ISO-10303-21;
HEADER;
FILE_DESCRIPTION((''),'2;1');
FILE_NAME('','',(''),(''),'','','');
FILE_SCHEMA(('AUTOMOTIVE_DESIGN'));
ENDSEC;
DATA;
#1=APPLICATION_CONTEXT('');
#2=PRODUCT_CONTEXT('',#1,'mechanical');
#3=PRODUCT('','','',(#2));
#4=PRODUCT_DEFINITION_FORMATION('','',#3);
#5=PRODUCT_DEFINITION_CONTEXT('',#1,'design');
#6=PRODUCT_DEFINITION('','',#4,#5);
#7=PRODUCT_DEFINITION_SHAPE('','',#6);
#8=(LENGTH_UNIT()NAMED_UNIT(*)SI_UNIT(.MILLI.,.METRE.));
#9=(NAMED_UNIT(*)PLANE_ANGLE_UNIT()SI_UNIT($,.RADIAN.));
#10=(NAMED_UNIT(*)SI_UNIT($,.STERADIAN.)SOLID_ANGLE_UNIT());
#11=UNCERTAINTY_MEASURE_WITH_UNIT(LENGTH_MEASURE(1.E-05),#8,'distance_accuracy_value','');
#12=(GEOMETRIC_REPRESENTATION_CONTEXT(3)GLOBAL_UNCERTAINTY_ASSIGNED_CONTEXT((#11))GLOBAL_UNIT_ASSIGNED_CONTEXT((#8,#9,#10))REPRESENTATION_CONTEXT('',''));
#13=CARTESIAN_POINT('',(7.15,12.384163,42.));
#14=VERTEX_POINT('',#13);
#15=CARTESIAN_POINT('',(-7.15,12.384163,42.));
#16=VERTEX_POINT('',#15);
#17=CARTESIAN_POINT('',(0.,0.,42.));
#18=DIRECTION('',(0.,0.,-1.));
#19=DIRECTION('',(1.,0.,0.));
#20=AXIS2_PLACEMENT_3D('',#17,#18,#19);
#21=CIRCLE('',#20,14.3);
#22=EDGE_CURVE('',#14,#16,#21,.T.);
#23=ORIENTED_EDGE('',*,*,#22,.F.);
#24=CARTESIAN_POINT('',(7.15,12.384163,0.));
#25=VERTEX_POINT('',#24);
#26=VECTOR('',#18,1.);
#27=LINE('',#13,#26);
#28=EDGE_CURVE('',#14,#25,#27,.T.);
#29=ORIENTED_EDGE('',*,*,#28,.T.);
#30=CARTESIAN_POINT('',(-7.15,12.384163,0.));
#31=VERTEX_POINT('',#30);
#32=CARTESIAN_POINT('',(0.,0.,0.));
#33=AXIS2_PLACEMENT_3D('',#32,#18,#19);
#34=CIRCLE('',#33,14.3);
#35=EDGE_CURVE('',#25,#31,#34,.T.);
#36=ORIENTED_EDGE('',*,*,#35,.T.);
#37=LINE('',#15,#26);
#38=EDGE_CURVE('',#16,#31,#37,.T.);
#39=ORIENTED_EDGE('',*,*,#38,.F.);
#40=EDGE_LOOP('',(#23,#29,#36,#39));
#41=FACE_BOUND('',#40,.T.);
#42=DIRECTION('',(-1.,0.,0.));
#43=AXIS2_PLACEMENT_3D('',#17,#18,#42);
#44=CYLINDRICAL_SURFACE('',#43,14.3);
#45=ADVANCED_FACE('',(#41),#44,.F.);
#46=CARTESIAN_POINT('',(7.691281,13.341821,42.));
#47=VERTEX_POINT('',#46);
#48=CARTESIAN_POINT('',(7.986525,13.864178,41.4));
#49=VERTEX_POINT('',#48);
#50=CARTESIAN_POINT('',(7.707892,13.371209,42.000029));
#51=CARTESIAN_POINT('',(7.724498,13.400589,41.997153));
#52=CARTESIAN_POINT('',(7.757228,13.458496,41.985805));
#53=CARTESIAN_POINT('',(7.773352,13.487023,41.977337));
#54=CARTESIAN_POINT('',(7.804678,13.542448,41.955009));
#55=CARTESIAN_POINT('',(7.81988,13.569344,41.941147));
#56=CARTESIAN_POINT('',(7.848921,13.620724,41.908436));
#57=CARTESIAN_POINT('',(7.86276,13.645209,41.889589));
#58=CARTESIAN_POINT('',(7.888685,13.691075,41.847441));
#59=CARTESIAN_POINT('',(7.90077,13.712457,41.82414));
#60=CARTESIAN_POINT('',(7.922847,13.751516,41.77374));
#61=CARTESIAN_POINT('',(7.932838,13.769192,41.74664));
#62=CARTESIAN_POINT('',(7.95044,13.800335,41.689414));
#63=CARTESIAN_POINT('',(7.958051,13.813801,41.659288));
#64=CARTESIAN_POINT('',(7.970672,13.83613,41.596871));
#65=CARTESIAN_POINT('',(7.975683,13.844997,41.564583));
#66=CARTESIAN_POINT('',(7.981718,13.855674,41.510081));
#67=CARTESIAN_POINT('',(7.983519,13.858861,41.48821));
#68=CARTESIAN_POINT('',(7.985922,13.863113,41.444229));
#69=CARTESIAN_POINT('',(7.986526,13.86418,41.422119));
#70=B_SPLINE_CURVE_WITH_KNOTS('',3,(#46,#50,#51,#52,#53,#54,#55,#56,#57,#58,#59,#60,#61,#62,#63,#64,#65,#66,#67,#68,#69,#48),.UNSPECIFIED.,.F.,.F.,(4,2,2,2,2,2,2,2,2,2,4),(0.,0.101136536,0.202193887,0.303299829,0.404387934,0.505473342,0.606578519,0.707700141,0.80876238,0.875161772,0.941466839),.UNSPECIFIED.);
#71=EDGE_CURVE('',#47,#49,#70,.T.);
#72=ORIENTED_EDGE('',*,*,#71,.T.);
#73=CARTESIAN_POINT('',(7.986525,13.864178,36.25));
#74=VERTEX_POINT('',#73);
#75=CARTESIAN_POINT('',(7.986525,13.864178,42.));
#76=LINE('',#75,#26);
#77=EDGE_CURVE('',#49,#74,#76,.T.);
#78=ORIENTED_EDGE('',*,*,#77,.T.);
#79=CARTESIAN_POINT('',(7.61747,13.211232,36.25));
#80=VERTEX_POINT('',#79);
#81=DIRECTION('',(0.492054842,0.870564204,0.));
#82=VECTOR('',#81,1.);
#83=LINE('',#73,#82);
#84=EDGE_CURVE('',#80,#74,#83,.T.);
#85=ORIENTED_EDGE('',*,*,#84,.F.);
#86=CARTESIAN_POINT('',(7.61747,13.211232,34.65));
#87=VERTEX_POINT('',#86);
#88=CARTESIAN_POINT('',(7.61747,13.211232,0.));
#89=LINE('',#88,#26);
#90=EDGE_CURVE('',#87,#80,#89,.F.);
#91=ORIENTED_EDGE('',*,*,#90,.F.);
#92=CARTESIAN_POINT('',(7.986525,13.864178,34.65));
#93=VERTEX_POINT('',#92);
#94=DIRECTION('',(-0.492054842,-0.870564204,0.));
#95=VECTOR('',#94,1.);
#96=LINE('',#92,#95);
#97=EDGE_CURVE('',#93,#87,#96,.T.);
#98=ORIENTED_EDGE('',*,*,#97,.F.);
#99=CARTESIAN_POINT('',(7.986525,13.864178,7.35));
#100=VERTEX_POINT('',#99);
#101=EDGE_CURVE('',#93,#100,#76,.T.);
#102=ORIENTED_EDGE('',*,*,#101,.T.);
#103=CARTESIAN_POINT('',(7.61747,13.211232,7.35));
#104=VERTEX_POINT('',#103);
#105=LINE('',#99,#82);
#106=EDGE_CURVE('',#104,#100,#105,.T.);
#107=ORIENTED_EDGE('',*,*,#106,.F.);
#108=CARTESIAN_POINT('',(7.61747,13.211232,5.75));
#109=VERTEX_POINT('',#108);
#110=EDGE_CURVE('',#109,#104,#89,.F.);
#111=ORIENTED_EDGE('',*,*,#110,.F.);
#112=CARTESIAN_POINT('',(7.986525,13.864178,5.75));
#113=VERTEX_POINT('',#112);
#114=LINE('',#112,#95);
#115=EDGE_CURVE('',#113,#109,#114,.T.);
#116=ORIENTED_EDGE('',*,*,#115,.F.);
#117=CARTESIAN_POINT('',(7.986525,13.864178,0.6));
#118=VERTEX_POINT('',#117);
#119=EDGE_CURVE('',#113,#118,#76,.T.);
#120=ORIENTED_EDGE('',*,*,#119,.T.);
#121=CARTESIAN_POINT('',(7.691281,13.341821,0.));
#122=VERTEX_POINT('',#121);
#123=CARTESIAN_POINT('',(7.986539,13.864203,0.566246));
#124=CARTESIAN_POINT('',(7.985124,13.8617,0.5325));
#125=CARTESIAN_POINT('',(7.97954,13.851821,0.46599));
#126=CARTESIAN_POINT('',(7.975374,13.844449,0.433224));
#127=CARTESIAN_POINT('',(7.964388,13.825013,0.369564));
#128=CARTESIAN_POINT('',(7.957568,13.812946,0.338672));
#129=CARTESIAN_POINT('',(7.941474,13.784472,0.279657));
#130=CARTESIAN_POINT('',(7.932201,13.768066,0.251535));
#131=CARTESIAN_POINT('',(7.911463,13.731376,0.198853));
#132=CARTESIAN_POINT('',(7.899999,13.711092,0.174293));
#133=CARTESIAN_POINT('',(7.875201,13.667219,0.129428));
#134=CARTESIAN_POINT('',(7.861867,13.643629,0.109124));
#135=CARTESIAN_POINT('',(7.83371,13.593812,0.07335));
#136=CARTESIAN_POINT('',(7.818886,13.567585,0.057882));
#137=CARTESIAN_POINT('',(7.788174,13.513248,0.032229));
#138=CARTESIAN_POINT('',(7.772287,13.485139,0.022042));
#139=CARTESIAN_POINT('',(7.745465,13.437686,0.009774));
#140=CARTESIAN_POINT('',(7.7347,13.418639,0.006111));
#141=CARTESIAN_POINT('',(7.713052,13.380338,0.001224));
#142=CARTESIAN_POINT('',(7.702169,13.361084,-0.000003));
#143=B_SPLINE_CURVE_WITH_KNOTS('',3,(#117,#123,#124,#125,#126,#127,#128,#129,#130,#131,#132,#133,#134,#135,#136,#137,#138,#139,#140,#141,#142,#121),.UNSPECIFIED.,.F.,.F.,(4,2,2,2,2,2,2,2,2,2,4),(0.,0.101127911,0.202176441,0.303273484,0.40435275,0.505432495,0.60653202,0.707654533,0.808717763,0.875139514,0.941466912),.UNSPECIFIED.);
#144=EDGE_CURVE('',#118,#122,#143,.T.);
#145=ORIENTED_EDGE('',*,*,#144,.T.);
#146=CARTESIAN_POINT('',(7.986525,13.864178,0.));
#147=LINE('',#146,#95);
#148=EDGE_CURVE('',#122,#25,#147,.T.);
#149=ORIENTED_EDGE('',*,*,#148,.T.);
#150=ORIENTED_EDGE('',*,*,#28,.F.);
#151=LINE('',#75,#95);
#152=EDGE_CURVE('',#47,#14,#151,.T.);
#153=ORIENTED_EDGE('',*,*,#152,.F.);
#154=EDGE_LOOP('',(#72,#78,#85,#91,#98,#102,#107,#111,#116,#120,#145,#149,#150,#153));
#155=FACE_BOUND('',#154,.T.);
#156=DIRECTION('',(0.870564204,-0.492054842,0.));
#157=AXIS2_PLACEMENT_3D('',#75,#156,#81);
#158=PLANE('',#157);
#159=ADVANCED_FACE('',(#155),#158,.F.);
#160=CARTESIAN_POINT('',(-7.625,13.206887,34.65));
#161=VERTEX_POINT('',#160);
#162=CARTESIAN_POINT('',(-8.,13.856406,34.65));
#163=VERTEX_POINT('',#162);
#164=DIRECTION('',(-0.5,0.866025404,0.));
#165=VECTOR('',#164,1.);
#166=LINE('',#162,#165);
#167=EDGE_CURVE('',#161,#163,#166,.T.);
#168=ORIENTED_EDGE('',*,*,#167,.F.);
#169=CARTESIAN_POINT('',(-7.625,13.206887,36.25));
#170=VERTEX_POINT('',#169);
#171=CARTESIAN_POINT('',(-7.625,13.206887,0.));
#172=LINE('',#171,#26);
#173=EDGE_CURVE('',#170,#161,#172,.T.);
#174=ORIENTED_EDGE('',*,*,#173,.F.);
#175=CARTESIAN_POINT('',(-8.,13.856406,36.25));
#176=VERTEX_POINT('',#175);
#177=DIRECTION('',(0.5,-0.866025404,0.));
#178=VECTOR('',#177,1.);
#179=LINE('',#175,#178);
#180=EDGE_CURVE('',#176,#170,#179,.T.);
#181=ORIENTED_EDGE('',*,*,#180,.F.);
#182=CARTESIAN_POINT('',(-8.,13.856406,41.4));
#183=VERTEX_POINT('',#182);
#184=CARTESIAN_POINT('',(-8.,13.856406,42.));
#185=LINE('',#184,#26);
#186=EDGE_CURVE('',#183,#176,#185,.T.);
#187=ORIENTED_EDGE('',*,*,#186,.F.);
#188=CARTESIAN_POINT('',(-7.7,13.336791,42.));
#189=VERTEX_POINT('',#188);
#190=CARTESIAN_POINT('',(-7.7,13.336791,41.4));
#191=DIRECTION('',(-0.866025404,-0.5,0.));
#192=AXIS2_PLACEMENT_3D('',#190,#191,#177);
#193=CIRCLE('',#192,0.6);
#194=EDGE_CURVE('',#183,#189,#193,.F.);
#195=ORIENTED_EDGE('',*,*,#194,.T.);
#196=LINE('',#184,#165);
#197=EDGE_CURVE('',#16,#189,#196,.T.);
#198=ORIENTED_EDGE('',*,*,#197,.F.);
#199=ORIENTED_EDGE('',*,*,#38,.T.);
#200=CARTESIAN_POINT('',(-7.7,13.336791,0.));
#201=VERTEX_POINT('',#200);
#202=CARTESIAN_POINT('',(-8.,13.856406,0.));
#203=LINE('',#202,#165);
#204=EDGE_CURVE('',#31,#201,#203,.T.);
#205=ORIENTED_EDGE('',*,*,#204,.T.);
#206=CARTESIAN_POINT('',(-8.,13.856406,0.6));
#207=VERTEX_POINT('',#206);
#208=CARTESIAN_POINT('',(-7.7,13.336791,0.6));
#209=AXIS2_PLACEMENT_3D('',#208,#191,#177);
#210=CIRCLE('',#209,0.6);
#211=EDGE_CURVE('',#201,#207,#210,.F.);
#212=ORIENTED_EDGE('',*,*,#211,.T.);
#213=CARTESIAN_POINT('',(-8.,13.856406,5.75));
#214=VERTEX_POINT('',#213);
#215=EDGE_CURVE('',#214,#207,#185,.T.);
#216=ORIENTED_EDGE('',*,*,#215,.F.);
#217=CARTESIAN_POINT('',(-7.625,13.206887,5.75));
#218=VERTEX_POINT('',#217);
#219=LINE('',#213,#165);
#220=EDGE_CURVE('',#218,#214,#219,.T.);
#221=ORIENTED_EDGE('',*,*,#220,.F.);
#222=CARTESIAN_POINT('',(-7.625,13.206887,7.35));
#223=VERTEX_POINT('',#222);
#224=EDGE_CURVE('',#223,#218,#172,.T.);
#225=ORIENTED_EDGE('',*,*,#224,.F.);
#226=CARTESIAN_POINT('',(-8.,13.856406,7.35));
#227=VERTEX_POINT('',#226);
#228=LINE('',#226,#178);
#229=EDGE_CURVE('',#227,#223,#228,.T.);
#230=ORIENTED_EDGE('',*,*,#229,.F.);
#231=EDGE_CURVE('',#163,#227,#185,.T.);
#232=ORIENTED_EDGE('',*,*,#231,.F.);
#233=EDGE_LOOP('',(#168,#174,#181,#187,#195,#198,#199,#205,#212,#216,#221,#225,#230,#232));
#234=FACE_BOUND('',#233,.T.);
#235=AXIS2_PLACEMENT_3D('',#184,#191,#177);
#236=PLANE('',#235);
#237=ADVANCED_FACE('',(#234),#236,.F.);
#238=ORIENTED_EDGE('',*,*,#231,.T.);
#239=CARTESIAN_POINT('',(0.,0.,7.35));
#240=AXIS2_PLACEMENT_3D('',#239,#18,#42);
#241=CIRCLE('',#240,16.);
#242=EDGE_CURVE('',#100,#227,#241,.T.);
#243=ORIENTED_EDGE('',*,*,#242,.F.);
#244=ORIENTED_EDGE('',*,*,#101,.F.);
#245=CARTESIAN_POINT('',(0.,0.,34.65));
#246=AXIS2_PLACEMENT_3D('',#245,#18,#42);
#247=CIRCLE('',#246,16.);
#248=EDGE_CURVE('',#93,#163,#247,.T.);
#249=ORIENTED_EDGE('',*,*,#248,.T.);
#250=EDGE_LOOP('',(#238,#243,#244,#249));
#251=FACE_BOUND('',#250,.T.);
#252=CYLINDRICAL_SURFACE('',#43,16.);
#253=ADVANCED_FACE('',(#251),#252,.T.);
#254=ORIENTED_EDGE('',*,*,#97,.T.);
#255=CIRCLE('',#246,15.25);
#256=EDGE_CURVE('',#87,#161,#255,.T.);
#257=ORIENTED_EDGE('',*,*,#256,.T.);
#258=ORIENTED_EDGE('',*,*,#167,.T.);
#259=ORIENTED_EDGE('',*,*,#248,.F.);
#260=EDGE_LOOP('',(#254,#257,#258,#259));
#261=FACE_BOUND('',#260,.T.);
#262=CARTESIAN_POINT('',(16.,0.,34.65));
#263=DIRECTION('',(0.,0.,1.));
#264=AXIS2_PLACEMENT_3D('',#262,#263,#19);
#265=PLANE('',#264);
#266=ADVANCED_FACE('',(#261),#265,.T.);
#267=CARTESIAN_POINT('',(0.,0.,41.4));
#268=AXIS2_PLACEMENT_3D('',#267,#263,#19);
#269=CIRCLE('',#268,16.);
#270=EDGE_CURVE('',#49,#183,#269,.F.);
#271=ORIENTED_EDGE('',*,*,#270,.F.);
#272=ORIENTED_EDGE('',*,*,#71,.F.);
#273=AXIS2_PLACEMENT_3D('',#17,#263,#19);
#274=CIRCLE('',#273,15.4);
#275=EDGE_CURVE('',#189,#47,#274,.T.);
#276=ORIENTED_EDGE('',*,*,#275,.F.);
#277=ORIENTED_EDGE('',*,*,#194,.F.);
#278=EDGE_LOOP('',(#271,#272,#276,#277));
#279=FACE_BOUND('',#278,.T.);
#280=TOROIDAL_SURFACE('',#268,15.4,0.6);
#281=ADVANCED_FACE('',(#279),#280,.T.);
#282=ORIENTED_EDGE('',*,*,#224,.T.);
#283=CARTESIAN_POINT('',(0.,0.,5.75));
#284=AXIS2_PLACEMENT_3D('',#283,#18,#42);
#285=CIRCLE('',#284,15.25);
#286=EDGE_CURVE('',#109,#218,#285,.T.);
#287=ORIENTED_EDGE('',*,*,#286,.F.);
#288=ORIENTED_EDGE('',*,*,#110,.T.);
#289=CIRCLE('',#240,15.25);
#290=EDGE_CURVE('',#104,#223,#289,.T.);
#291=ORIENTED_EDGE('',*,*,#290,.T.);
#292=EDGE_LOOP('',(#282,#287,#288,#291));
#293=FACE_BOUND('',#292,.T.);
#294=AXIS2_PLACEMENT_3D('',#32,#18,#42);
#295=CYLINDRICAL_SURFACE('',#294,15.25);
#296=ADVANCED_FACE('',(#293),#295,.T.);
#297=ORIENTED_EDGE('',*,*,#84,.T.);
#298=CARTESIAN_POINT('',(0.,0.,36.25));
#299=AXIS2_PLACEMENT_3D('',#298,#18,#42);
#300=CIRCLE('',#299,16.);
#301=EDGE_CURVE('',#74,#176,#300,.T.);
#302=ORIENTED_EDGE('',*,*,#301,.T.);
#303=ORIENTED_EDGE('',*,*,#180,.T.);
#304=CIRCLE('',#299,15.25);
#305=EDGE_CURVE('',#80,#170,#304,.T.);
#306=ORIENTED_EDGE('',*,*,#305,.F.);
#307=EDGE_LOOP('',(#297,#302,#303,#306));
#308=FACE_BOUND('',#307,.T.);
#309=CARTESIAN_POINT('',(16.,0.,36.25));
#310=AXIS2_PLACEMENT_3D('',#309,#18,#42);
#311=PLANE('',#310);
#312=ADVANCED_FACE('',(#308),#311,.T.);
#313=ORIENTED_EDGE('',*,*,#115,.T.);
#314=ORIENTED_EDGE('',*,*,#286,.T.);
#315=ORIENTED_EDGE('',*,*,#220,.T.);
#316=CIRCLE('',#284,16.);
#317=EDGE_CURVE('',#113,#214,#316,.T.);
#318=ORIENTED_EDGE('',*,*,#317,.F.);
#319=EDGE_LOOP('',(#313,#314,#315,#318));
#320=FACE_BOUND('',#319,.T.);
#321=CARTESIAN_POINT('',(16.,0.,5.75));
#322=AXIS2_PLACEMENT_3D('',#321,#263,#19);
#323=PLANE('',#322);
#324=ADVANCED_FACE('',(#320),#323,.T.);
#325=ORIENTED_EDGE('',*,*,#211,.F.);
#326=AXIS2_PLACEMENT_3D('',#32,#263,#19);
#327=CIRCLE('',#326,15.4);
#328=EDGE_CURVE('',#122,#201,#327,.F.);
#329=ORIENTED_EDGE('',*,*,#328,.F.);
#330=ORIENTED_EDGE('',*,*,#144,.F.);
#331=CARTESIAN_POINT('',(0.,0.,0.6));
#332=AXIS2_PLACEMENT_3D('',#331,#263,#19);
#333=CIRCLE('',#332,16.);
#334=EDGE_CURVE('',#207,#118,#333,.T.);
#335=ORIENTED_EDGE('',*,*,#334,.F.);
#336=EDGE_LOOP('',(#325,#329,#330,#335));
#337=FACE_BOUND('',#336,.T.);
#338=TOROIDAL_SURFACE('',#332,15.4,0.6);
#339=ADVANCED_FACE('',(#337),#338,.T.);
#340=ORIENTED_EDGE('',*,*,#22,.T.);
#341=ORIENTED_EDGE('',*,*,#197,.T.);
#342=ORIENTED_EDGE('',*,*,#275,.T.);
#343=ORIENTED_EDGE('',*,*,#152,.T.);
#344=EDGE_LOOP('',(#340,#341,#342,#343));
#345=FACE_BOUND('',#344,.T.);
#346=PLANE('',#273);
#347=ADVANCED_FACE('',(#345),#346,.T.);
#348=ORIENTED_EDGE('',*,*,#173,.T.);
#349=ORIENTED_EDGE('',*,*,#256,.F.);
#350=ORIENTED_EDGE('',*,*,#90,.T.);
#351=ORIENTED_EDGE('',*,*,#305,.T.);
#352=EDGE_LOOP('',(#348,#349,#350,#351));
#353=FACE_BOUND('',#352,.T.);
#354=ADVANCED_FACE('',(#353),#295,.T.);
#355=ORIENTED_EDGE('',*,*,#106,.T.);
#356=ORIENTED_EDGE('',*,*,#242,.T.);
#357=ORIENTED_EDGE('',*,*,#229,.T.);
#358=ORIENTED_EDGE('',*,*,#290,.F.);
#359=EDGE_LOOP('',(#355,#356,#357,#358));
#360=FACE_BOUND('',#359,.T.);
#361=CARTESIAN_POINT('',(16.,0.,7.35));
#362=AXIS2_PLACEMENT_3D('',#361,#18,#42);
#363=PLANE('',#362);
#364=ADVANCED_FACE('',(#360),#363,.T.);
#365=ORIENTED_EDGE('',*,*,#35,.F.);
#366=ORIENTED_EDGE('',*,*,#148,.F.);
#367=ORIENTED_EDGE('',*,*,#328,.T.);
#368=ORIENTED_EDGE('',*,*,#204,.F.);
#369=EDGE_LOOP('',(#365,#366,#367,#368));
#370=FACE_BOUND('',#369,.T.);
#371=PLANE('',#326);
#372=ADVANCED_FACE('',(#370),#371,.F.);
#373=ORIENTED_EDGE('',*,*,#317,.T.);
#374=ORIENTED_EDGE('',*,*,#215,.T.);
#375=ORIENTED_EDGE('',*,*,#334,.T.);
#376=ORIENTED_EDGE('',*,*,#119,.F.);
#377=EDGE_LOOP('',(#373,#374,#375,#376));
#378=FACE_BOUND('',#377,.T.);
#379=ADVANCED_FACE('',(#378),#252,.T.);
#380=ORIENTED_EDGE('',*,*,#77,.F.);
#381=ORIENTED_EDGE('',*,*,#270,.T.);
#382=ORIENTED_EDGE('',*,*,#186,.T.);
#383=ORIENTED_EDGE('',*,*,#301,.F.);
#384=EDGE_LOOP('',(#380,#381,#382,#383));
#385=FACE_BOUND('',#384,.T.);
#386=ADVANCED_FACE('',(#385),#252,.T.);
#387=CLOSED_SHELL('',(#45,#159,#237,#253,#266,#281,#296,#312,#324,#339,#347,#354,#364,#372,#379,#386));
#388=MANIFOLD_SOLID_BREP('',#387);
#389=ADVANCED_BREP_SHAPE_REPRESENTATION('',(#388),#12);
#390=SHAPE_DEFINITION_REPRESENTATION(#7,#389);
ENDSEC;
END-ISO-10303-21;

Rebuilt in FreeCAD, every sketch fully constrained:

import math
import FreeCAD as App
import Part
import Sketcher
from FreeCAD import Vector
Q = App.Units.Quantity


def edges_at(feature, points):
    """Names of the edges that pass closest to the given points."""
    edges = feature.Shape.Edges
    near = lambda p: min(range(len(edges)), key=lambda i: edges[i].distToShape(Part.Vertex(*p))[0])
    return sorted({f"Edge{near(p) + 1}" for p in points})

doc = App.newDocument("Part")
body = doc.addObject("PartDesign::Body", "Body")

# Sketch on XY plane
sketch1 = body.newObject("Sketcher::SketchObject", "Sketch")
sketch1.AttachmentSupport = (doc.getObject("XY_Plane"), [""])
sketch1.MapMode = "FlatFace"
sketch1.addGeometry([
    Part.LineSegment(Vector(-7.2, 12.4, 0), Vector(-8, 13.9, 0)),
    Part.ArcOfCircle(Part.Circle(Vector(0, 0, 0), Vector(0, 0, 1), 16), math.radians(120), math.radians(420)),
    Part.LineSegment(Vector(8, 13.9, 0), Vector(7.2, 12.4, 0)),
    Part.ArcOfCircle(Part.Circle(Vector(0, 0, 0), Vector(0, 0, 1), 14.3), math.radians(120), math.radians(420)),
], False)
sketch1.addConstraint([
    Sketcher.Constraint("Coincident", 0, 2, 1, 1),
    Sketcher.Constraint("Coincident", 1, 2, 2, 1),
    Sketcher.Constraint("Coincident", 2, 2, 3, 2),
    Sketcher.Constraint("Coincident", 3, 1, 0, 1),
    Sketcher.Constraint("Coincident", 1, 3, -1, 1),
    Sketcher.Constraint("Coincident", 3, 3, -1, 1),
    Sketcher.Constraint("Horizontal", 2, 2, 3, 1),
    Sketcher.Constraint("Radius", 1, Q("16 mm")),
    Sketcher.Constraint("Radius", 3, Q("14.3 mm")),
    Sketcher.Constraint("Angle", 0, Q("120 deg")),
    Sketcher.Constraint("DistanceX", 0, 2, -1, 1, Q("8 mm")),
    Sketcher.Constraint("DistanceY", 0, 2, 1, 2, Q("0.007771 mm")),
])
pad1 = body.newObject("PartDesign::Pad", "Pad")
pad1.Profile = sketch1
pad1.Length = 42

# Sketch on XZ plane
sketch2 = body.newObject("Sketcher::SketchObject", "Sketch001")
sketch2.AttachmentSupport = (doc.getObject("XZ_Plane"), [""])
sketch2.MapMode = "FlatFace"
sketch2.addGeometry([
    Part.LineSegment(Vector(15.2, 34.6, 0), Vector(15.2, 36.2, 0)),  # 0
    Part.LineSegment(Vector(15.2, 36.2, 0), Vector(16, 36.2, 0)),  # 1
    Part.LineSegment(Vector(16, 36.2, 0), Vector(16, 34.6, 0)),  # 2
    Part.LineSegment(Vector(16, 34.6, 0), Vector(15.2, 34.6, 0)),  # 3
    Part.LineSegment(Vector(15.2, 5.8, 0), Vector(15.2, 7.3, 0)),  # 4
    Part.LineSegment(Vector(15.2, 7.3, 0), Vector(16, 7.3, 0)),  # 5
    Part.LineSegment(Vector(16, 7.3, 0), Vector(16, 5.8, 0)),  # 6
    Part.LineSegment(Vector(16, 5.8, 0), Vector(15.2, 5.8, 0)),  # 7
], False)
sketch2.addConstraint([
    Sketcher.Constraint("Coincident", 0, 2, 1, 1),
    Sketcher.Constraint("Coincident", 1, 2, 2, 1),
    Sketcher.Constraint("Coincident", 2, 2, 3, 1),
    Sketcher.Constraint("Coincident", 3, 2, 0, 1),
    Sketcher.Constraint("Coincident", 4, 2, 5, 1),
    Sketcher.Constraint("Coincident", 5, 2, 6, 1),
    Sketcher.Constraint("Coincident", 6, 2, 7, 1),
    Sketcher.Constraint("Coincident", 7, 2, 4, 1),
    Sketcher.Constraint("Vertical", 0),
    Sketcher.Constraint("Horizontal", 1),
    Sketcher.Constraint("Vertical", 2),
    Sketcher.Constraint("Horizontal", 3),
    Sketcher.Constraint("Vertical", 4),
    Sketcher.Constraint("Horizontal", 5),
    Sketcher.Constraint("Vertical", 6),
    Sketcher.Constraint("Horizontal", 7),
    Sketcher.Constraint("Vertical", 3, 2, 4, 2),
    Sketcher.Constraint("Vertical", 2, 2, 5, 2),
    Sketcher.Constraint("Equal", 2, 4),
    Sketcher.Constraint("DistanceY", 0, 1, 0, 2, Q("1.6 mm")),
    Sketcher.Constraint("DistanceX", -1, 1, 1, 2, Q("16 mm")),
    Sketcher.Constraint("DistanceX", 1, 1, 1, 2, Q("0.75 mm")),
    Sketcher.Constraint("DistanceY", 4, 2, 3, 2, Q("27.3 mm")),
    Sketcher.Constraint("DistanceY", -1, 1, 0, 2, Q("36.25 mm")),
])
groove = body.newObject("PartDesign::Groove", "Groove")
groove.Profile = sketch2
groove.ReferenceAxis = (sketch2, ["V_Axis"])
groove.Angle = 360
doc.recompute()

fillet = body.newObject("PartDesign::Fillet", "Fillet")
fillet.Base = (groove, edges_at(groove, [(0.008, -16, 42), (0.008, -16, 0)]))
fillet.Radius = 0.6

doc.recompute()
